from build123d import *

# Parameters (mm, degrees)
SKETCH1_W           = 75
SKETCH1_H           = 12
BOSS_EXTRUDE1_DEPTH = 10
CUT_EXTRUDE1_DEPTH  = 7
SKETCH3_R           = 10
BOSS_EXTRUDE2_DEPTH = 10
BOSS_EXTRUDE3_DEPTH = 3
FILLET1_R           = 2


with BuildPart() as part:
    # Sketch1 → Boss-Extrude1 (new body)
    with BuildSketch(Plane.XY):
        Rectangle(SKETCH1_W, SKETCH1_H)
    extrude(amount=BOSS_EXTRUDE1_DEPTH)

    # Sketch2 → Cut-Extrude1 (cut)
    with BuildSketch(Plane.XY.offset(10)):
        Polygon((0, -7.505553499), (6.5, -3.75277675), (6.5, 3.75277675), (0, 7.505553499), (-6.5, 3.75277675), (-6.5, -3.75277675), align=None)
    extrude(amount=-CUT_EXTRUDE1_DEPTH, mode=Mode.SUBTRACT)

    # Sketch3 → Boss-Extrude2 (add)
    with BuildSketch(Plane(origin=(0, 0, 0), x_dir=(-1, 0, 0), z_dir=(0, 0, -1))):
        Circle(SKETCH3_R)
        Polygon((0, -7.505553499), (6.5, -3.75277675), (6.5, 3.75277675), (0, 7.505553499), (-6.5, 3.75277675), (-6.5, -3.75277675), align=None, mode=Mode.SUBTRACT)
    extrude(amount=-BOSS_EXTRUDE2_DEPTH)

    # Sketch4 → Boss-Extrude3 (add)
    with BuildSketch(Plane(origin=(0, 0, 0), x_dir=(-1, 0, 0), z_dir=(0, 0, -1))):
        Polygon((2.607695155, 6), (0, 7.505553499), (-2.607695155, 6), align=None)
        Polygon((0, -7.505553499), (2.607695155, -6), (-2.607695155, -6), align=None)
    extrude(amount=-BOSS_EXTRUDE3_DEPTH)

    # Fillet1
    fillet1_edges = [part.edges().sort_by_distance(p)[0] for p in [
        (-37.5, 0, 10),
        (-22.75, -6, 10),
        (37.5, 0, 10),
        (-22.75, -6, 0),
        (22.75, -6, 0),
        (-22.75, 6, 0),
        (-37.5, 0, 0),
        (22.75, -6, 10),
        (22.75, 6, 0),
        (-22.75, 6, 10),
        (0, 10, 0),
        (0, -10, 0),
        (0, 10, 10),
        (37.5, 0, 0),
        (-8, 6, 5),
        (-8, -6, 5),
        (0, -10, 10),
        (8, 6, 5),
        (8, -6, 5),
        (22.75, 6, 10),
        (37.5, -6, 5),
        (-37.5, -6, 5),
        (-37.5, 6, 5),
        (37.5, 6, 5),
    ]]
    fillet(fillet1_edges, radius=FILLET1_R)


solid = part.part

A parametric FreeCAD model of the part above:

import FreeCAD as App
import Part
import Sketcher

V = App.Vector
Q = App.Units.Quantity


def edges_at(feature, points):
    """Names of the edges that pass closest to the given points."""
    edges = feature.Shape.Edges
    near = lambda p: min(range(len(edges)), key=lambda i: edges[i].distToShape(Part.Vertex(*p))[0])
    return sorted({f"Edge{near(p) + 1}" for p in points})

doc = App.newDocument("Part")
body = doc.addObject("PartDesign::Body", "Body")

# Sketch on XY plane
sketch1 = doc.addObject("Sketcher::SketchObject", "Sketch")
body.addObject(sketch1)
sketch1.AttachmentSupport = (doc.XY_Plane, [""])
sketch1.MapMode = "FlatFace"
sketch1.addGeometry([
    Part.LineSegment(V(-38, 6, 0), V(-38, -6, 0)),
    Part.LineSegment(V(-38, -6, 0), V(38, -6, 0)),
    Part.LineSegment(V(38, -6, 0), V(38, 6, 0)),
    Part.LineSegment(V(38, 6, 0), V(-38, 6, 0)),
], False)
sketch1.addConstraint([
    Sketcher.Constraint("Coincident", 0, 2, 1, 1),
    Sketcher.Constraint("Coincident", 1, 2, 2, 1),
    Sketcher.Constraint("Coincident", 2, 2, 3, 1),
    Sketcher.Constraint("Coincident", 3, 2, 0, 1),
    Sketcher.Constraint("Vertical", 0),
    Sketcher.Constraint("Horizontal", 1),
    Sketcher.Constraint("Vertical", 2),
    Sketcher.Constraint("Horizontal", 3),
    Sketcher.Constraint("Symmetric", 0, 2, 2, 2, -1, 1),
    Sketcher.Constraint("DistanceX", 1, 1, 1, 2, 75.0),
    Sketcher.Constraint("DistanceY", 0, 2, 0, 1, 12.0),
])
pad1 = doc.addObject("PartDesign::Pad", "Pad")
body.addObject(pad1)
pad1.Profile = sketch1
pad1.Length = 10

# Sketch on XY plane
sketch2 = doc.addObject("Sketcher::SketchObject", "Sketch001")
body.addObject(sketch2)
sketch2.AttachmentSupport = (doc.XY_Plane, [""])
sketch2.MapMode = "FlatFace"
sketch2.AttachmentOffset = App.Placement(V(0, 0, 10), App.Rotation())
sketch2.addGeometry([
    Part.LineSegment(V(0, -8, 0), V(6, -4, 0)),  # 0
    Part.LineSegment(V(6, -4, 0), V(6, 4, 0)),  # 1
    Part.LineSegment(V(6, 4, 0), V(0, 8, 0)),  # 2
    Part.LineSegment(V(0, 8, 0), V(-6, 4, 0)),  # 3
    Part.LineSegment(V(-6, 4, 0), V(-6, -4, 0)),  # 4
    Part.LineSegment(V(-6, -4, 0), V(0, -8, 0)),  # 5
], False)
sketch2.addConstraint([
    Sketcher.Constraint("Coincident", 0, 2, 1, 1),
    Sketcher.Constraint("Coincident", 1, 2, 2, 1),
    Sketcher.Constraint("Coincident", 2, 2, 3, 1),
    Sketcher.Constraint("Coincident", 3, 2, 4, 1),
    Sketcher.Constraint("Coincident", 4, 2, 5, 1),
    Sketcher.Constraint("Coincident", 5, 2, 0, 1),
    Sketcher.Constraint("Vertical", 1),
    Sketcher.Constraint("Vertical", 4),
    Sketcher.Constraint("Symmetric", 0, 2, 3, 2, -1, 1),
    Sketcher.Constraint("Symmetric", 2, 2, 5, 2, -1, 1),
    Sketcher.Constraint("PointOnObject", 2, 2, -2),
    Sketcher.Constraint("Parallel", 2, 5),
    Sketcher.Constraint("Horizontal", 1, 2, 3, 2),
    Sketcher.Constraint("Angle", 0, Q("30 deg")),
    Sketcher.Constraint("DistanceX", 3, 2, 1, 2, 13.0),
    Sketcher.Constraint("DistanceY", 1, 1, 1, 2, 7.505554),
])
pocket1 = doc.addObject("PartDesign::Pocket", "Pocket")
body.addObject(pocket1)
pocket1.Profile = sketch2
pocket1.Length = 7

# Sketch on XY plane
sketch3 = doc.addObject("Sketcher::SketchObject", "Sketch002")
body.addObject(sketch3)
sketch3.AttachmentSupport = (doc.XY_Plane, [""])
sketch3.MapMode = "FlatFace"
sketch3.addGeometry([
    Part.Circle(V(0, 0, 0), V(0, 0, 1), 10),  # 0
    Part.LineSegment(V(-6, -4, 0), V(0, -8, 0)),  # 1
    Part.LineSegment(V(0, -8, 0), V(6, -4, 0)),  # 2
    Part.LineSegment(V(6, -4, 0), V(6, 4, 0)),  # 3
    Part.LineSegment(V(6, 4, 0), V(0, 8, 0)),  # 4
    Part.LineSegment(V(0, 8, 0), V(-6, 4, 0)),  # 5
    Part.LineSegment(V(-6, 4, 0), V(-6, -4, 0)),  # 6
], False)
sketch3.addConstraint([
    Sketcher.Constraint("Coincident", 1, 2, 2, 1),
    Sketcher.Constraint("Coincident", 2, 2, 3, 1),
    Sketcher.Constraint("Coincident", 3, 2, 4, 1),
    Sketcher.Constraint("Coincident", 4, 2, 5, 1),
    Sketcher.Constraint("Coincident", 5, 2, 6, 1),
    Sketcher.Constraint("Coincident", 6, 2, 1, 1),
    Sketcher.Constraint("Vertical", 3),
    Sketcher.Constraint("Vertical", 6),
    Sketcher.Constraint("Coincident", 0, 3, -1, 1),
    Sketcher.Constraint("Symmetric", 1, 2, 4, 2, -1, 1),
    Sketcher.Constraint("Symmetric", 2, 2, 5, 2, -1, 1),
    Sketcher.Constraint("PointOnObject", 1, 2, -2),
    Sketcher.Constraint("Parallel", 1, 4),
    Sketcher.Constraint("Horizontal", 3, 2, 5, 2),
    Sketcher.Constraint("Diameter", 0, 20.0),
    Sketcher.Constraint("Angle", 1, Q("-30 deg")),
    Sketcher.Constraint("DistanceX", 5, 2, 3, 2, 13.0),
    Sketcher.Constraint("DistanceY", 3, 1, 3, 2, 7.505554),
])
pad2 = doc.addObject("PartDesign::Pad", "Pad001")
body.addObject(pad2)
pad2.Profile = sketch3
pad2.Length = 10

# Sketch on XY plane
sketch4 = doc.addObject("Sketcher::SketchObject", "Sketch003")
body.addObject(sketch4)
sketch4.AttachmentSupport = (doc.XY_Plane, [""])
sketch4.MapMode = "FlatFace"
sketch4.addGeometry([
    Part.LineSegment(V(-2.6, 6, 0), V(0, 7.5, 0)),  # 0
    Part.LineSegment(V(0, 7.5, 0), V(2.6, 6, 0)),  # 1
    Part.LineSegment(V(2.6, 6, 0), V(-2.6, 6, 0)),  # 2
    Part.LineSegment(V(0, -7.5, 0), V(-2.6, -6, 0)),  # 3
    Part.LineSegment(V(-2.6, -6, 0), V(2.6, -6, 0)),  # 4
    Part.LineSegment(V(2.6, -6, 0), V(0, -7.5, 0)),  # 5
], False)
sketch4.addConstraint([
    Sketcher.Constraint("Coincident", 0, 2, 1, 1),
    Sketcher.Constraint("Coincident", 1, 2, 2, 1),
    Sketcher.Constraint("Coincident", 2, 2, 0, 1),
    Sketcher.Constraint("Coincident", 3, 2, 4, 1),
    Sketcher.Constraint("Coincident", 4, 2, 5, 1),
    Sketcher.Constraint("Coincident", 5, 2, 3, 1),
    Sketcher.Constraint("Horizontal", 2),
    Sketcher.Constraint("Horizontal", 4),
    Sketcher.Constraint("Symmetric", 1, 2, 3, 2, -1, 1),
    Sketcher.Constraint("Symmetric", 0, 2, 5, 2, -1, 1),
    Sketcher.Constraint("PointOnObject", 0, 2, -2),
    Sketcher.Constraint("Parallel", 0, 5),
    Sketcher.Constraint("Vertical", 2, 2, 3, 2),
    Sketcher.Constraint("Angle", 0, Q("30 deg")),
    Sketcher.Constraint("DistanceY", -1, 1, 1, 2, 6.0),
    Sketcher.Constraint("DistanceX", 2, 2, 2, 1, 5.21539),
])
pad3 = doc.addObject("PartDesign::Pad", "Pad002")
body.addObject(pad3)
pad3.Profile = sketch4
pad3.Length = 3
doc.recompute()

fillet = doc.addObject("PartDesign::Fillet", "Fillet")
body.addObject(fillet)
fillet.Base = (pad3, edges_at(pad3, [
    (-37.5, 0, 10),
    (-22.75, -6, 10),
    (37.5, 0, 10),
    (-22.75, -6, 0),
    (22.75, -6, 0),
    (-22.75, 6, 0),
    (-37.5, 0, 0),
    (22.75, -6, 10),
    (22.75, 6, 0),
    (-22.75, 6, 10),
    (0, 10, 0),
    (0, -10, 0),
    (0, 10, 10),
    (37.5, 0, 0),
    (-8, 6, 5),
    (-8, -6, 5),
    (0, -10, 10),
    (8, 6, 5),
    (8, -6, 5),
    (22.75, 6, 10),
    (37.5, -6, 5),
    (-37.5, -6, 5),
    (-37.5, 6, 5),
    (37.5, 6, 5),
]))
fillet.Radius = 2

doc.recompute()
